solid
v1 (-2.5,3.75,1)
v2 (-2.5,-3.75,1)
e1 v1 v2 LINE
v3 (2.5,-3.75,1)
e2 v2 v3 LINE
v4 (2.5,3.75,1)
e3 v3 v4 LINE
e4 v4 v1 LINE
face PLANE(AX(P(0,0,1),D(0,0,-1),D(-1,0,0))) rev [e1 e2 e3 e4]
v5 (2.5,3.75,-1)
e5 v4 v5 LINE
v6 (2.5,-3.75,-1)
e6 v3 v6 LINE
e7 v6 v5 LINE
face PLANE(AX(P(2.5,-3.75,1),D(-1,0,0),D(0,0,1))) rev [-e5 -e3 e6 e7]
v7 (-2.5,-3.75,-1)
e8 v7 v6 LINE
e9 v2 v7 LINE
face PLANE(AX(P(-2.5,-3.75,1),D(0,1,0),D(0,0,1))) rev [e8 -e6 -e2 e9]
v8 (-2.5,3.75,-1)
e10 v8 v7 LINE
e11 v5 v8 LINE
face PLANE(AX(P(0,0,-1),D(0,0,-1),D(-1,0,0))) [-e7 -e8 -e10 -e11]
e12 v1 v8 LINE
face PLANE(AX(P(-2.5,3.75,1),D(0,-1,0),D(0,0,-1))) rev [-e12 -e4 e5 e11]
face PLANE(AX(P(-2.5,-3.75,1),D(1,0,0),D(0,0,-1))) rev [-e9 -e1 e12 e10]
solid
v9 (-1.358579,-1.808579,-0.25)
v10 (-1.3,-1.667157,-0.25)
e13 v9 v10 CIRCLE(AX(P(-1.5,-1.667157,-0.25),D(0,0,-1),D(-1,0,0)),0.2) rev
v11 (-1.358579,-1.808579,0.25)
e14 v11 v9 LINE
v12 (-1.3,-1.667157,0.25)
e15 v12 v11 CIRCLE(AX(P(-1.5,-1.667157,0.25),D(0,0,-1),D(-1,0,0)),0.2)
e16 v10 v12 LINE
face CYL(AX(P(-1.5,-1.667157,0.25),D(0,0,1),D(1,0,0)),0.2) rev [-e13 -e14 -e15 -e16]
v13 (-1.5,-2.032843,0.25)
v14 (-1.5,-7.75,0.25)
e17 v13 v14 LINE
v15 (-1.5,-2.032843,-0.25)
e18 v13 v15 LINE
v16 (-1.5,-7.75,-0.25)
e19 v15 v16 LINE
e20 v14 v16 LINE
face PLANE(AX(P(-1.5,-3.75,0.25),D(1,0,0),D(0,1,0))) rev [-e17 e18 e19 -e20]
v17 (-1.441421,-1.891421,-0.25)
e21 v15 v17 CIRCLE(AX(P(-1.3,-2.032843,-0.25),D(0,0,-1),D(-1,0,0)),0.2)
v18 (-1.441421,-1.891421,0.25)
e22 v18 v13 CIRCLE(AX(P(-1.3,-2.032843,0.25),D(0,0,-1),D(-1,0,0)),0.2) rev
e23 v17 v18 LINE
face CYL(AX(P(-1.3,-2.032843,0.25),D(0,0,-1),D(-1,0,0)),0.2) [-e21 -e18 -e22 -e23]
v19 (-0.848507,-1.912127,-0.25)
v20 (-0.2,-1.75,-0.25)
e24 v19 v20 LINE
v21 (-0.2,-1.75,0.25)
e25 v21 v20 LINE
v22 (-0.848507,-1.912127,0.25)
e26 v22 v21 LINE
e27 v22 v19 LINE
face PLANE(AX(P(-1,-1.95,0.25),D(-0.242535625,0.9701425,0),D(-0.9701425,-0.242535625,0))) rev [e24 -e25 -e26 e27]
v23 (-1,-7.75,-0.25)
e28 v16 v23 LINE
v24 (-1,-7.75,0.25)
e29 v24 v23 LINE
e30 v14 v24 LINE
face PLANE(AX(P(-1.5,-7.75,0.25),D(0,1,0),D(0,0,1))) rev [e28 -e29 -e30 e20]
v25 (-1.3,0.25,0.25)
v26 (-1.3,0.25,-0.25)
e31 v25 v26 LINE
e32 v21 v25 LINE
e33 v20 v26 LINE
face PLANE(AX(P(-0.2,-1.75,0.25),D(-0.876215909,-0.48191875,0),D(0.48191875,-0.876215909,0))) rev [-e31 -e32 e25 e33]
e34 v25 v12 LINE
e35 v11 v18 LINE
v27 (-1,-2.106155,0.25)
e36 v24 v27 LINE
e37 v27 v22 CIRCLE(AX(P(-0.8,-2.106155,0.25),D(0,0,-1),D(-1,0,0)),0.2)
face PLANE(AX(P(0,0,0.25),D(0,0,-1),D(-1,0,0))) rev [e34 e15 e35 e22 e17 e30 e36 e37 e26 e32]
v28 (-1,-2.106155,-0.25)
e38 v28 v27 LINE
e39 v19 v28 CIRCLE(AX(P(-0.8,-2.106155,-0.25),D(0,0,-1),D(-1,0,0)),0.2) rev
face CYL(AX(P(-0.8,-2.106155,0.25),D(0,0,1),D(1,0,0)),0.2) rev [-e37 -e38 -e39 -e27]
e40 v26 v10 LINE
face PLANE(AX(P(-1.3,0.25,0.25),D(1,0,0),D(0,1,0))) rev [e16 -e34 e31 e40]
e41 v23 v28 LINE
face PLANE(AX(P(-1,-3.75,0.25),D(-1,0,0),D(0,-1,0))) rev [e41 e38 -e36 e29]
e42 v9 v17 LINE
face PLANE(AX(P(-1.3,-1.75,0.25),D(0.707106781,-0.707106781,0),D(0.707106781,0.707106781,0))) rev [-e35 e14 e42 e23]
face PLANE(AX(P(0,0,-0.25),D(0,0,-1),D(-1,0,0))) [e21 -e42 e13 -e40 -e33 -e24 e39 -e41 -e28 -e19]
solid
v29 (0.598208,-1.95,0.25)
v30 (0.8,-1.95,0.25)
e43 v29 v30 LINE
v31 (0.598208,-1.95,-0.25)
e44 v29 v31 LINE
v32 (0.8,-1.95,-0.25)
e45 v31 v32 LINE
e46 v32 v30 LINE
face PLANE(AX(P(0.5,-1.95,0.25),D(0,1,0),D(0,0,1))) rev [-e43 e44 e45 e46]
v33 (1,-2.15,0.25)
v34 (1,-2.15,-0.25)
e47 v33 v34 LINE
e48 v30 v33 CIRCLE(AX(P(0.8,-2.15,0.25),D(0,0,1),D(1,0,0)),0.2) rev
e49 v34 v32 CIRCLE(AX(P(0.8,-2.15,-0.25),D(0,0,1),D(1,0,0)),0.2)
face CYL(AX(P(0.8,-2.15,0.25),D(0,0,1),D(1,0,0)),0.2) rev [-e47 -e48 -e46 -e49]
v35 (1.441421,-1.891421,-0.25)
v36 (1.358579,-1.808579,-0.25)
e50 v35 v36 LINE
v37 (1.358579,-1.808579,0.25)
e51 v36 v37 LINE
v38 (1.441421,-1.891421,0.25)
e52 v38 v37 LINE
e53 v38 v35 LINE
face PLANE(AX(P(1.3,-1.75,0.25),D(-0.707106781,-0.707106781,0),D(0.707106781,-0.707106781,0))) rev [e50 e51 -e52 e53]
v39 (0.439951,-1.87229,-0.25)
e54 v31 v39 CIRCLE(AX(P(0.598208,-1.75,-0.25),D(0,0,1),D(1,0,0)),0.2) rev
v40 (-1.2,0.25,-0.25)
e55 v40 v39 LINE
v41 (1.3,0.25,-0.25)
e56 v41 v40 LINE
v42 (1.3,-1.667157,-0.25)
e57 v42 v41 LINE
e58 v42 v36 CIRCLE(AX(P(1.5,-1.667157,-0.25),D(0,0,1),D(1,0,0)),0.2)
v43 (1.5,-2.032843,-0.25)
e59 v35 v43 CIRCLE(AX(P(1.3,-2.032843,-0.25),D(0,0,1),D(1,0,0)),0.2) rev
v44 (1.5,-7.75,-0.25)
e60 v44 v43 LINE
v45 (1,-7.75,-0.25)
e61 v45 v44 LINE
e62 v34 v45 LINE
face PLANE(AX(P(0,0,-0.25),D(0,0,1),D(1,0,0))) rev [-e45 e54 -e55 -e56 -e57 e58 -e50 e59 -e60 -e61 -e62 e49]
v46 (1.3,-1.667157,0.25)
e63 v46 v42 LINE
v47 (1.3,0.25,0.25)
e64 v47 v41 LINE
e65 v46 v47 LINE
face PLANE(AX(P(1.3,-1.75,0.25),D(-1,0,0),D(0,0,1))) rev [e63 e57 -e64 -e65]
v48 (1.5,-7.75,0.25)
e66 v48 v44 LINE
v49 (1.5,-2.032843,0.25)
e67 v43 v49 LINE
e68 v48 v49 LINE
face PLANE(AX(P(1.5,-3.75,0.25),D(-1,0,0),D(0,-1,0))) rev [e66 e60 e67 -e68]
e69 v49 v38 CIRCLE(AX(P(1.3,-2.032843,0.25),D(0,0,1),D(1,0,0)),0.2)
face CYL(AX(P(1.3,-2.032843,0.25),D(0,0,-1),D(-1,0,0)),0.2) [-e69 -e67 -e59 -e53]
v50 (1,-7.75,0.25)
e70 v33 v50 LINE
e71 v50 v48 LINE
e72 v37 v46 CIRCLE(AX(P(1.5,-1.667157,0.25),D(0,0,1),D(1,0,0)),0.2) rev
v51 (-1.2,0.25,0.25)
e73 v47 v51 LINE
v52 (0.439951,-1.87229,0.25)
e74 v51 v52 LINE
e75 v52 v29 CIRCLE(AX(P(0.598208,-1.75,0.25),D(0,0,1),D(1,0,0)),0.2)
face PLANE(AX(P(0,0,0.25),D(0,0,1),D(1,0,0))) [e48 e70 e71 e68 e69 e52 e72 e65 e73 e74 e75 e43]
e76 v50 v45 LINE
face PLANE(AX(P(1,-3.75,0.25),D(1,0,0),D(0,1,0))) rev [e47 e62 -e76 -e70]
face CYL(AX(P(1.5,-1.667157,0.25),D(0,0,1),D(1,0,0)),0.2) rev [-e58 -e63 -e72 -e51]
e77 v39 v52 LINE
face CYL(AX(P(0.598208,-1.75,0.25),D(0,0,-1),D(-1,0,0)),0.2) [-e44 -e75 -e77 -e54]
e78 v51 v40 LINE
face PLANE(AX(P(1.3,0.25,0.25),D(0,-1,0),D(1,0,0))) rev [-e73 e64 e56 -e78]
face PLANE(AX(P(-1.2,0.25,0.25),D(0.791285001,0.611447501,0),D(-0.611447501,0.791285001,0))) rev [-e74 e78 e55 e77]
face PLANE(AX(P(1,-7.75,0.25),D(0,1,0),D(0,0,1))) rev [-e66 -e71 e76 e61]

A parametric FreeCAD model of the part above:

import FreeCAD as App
import Part
import Sketcher
Q = App.Units.Quantity


def edges_at(feature, points):
    """Names of the edges that pass closest to the given points."""
    edges = feature.Shape.Edges
    near = lambda p: min(range(len(edges)), key=lambda i: edges[i].distToShape(Part.Vertex(*p))[0])
    return sorted({f"Edge{near(p) + 1}" for p in points})


def add_polygon(sketch, points):
    """Adds a closed chain of lines whose ends are joined by coincident constraints."""
    first, n = sketch.GeometryCount, len(points)
    for a, b in zip(points, points[1:] + points[:1]):
        sketch.addGeometry(Part.LineSegment(App.Vector(*a, 0), App.Vector(*b, 0)), False)
    for i in range(n):
        sketch.addConstraint(Sketcher.Constraint("Coincident", first + i, 2, first + (i + 1) % n, 1))

doc = App.newDocument("Part")
body = doc.addObject("PartDesign::Body", "Body")

# Sketch on XY plane
sketch1 = body.newObject("Sketcher::SketchObject", "Sketch")
sketch1.AttachmentSupport = (doc.getObject("XY_Plane"), [""])
sketch1.MapMode = "FlatFace"
add_polygon(sketch1, [(-2.5, 3.75), (-2.5, -3.75), (2.5, -3.75), (2.5, 3.75)])  # lines 0-3
sketch1.addConstraint([
    Sketcher.Constraint("Vertical", 0),
    Sketcher.Constraint("Horizontal", 1),
    Sketcher.Constraint("Vertical", 2),
    Sketcher.Constraint("Horizontal", 3),
    Sketcher.Constraint("Symmetric", 0, 2, 2, 2, -1, 1),
    Sketcher.Constraint("DistanceX", 1, 1, 1, 2, 5.0),
    Sketcher.Constraint("DistanceY", 0, 2, 0, 1, 7.5),
])
pad1 = body.newObject("PartDesign::Pad", "Pad")
pad1.Profile = sketch1
pad1.Length = 2
pad1.Midplane = True
body2 = doc.addObject("PartDesign::Body", "Body001")

# Sketch on XY plane
sketch2 = body2.newObject("Sketcher::SketchObject", "Sketch001")
sketch2.AttachmentSupport = (doc.getObject("XY_Plane001"), [""])
sketch2.MapMode = "FlatFace"
add_polygon(sketch2, [(1.5, -1.95), (1.3, -1.75), (1.3, 0.25), (-1.2, 0.25), (0.5, -1.95), (1, -1.95), (1, -7.75), (1.5, -7.75)])  # lines 0-7
sketch2.addConstraint([
    Sketcher.Constraint("Vertical", 1),
    Sketcher.Constraint("Horizontal", 2),
    Sketcher.Constraint("Horizontal", 4),
    Sketcher.Constraint("Vertical", 5),
    Sketcher.Constraint("Horizontal", 6),
    Sketcher.Constraint("Vertical", 7),
    Sketcher.Constraint("Horizontal", 4, 2, 7, 2),
    Sketcher.Constraint("Equal", 4, 6),
    Sketcher.Constraint("DistanceY", 1, 1, 1, 2, 2.0),
    Sketcher.Constraint("Angle", 0, Q("135 deg")),
    Sketcher.Constraint("DistanceX", 2, 2, 2, 1, 2.5),
    Sketcher.Constraint("DistanceX", 4, 1, 4, 2, 0.5),
    Sketcher.Constraint("DistanceY", 5, 2, 5, 1, 5.8),
    Sketcher.Constraint("DistanceX", -1, 1, 4, 2, 1.0),
    Sketcher.Constraint("DistanceY", 5, 2, 0, 2, 6.0),
    Sketcher.Constraint("DistanceY", 0, 2, -1, 1, 1.75),
])
pad2 = body2.newObject("PartDesign::Pad", "Pad001")
pad2.Profile = sketch2
pad2.Length = 0.5
pad2.Midplane = True
doc.recompute()

fillet = body2.newObject("PartDesign::Fillet", "Fillet")
fillet.Base = (pad2, edges_at(pad2, [
    (1, -1.95, 0),
    (0.5, -1.95, 0),
    (1.3, -1.75, 0),
    (1.5, -1.95, 0),
]))
fillet.Radius = 0.2
body3 = doc.addObject("PartDesign::Body", "Body002")

# Sketch on XY plane
sketch3 = body3.newObject("Sketcher::SketchObject", "Sketch002")
sketch3.AttachmentSupport = (doc.getObject("XY_Plane002"), [""])
sketch3.MapMode = "FlatFace"
add_polygon(sketch3, [(-1.5, -7.75), (-1, -7.75), (-1, -1.95), (-0.2, -1.75), (-1.3, 0.25), (-1.3, -1.75), (-1.5, -1.95)])  # lines 0-6
sketch3.addConstraint([
    Sketcher.Constraint("Horizontal", 0),
    Sketcher.Constraint("Vertical", 1),
    Sketcher.Constraint("Vertical", 4),
    Sketcher.Constraint("Vertical", 6),
    Sketcher.Constraint("Horizontal", 2, 2, 4, 2),
    Sketcher.Constraint("Horizontal", 1, 2, 5, 2),
    Sketcher.Constraint("DistanceY", 4, 2, 4, 1, 2.0),
    Sketcher.Constraint("Angle", 5, Q("-135 deg")),
    Sketcher.Constraint("DistanceX", 0, 1, 0, 2, 0.5),
    Sketcher.Constraint("DistanceY", 1, 1, 1, 2, 5.8),
    Sketcher.Constraint("DistanceX", 0, 2, -1, 1, 1.0),
    Sketcher.Constraint("DistanceY", 0, 2, 2, 2, 6.0),
    Sketcher.Constraint("DistanceX", 2, 2, -1, 1, 0.2),
    Sketcher.Constraint("DistanceY", 0, 2, -1, 1, 7.75),
])
pad3 = body3.newObject("PartDesign::Pad", "Pad002")
pad3.Profile = sketch3
pad3.Length = 0.5
pad3.Midplane = True
doc.recompute()

fillet2 = body3.newObject("PartDesign::Fillet", "Fillet001")
fillet2.Base = (pad3, edges_at(pad3, [(-1, -1.95, 0), (-1.5, -1.95, 0), (-1.3, -1.75, 0)]))
fillet2.Radius = 0.2

doc.recompute()
